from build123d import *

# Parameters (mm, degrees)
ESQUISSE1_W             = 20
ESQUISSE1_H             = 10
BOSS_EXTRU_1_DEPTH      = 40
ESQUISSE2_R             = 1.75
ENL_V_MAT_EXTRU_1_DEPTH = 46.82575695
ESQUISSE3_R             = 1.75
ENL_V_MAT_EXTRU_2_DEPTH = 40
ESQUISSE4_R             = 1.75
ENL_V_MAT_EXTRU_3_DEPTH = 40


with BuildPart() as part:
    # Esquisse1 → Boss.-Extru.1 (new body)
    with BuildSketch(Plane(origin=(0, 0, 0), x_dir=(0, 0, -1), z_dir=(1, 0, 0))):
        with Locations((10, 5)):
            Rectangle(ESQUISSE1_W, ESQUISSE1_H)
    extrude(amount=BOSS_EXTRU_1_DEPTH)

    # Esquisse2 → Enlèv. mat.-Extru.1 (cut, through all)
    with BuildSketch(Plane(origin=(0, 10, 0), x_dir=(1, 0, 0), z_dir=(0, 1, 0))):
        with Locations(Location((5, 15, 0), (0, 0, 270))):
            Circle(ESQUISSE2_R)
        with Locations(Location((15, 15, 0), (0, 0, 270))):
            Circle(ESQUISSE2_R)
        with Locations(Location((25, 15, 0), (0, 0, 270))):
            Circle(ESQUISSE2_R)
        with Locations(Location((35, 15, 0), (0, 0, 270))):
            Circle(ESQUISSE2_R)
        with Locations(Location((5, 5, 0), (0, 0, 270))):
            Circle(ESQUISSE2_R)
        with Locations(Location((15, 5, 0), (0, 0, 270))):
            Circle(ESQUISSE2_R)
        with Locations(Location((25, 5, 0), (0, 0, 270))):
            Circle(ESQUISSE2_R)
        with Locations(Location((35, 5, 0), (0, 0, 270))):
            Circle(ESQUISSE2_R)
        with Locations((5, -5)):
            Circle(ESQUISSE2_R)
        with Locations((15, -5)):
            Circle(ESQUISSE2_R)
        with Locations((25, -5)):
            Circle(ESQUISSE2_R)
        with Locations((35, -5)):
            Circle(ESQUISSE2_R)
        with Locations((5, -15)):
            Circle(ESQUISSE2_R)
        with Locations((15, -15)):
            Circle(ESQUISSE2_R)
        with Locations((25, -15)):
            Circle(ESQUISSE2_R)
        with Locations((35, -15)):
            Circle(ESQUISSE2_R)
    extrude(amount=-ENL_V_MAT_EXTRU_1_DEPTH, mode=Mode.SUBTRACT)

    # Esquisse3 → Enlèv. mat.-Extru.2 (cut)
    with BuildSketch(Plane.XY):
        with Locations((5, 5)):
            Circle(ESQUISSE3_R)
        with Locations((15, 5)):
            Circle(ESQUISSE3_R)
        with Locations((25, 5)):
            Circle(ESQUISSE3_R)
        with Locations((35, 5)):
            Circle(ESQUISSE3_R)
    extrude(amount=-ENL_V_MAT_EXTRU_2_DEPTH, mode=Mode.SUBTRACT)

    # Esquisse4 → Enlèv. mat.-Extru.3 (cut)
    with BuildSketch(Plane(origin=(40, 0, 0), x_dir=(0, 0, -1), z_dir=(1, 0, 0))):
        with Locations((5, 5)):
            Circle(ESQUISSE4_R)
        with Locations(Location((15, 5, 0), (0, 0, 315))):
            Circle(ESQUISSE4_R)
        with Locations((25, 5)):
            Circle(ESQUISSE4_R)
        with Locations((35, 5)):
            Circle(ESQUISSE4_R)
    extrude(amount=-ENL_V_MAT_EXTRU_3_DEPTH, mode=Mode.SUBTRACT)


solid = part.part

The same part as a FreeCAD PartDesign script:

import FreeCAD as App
import Part
import Sketcher
from FreeCAD import Vector
Q = App.Units.Quantity

doc = App.newDocument("Part")
params = doc.addObject("Spreadsheet::Sheet", "Params")
for row, (alias, value) in enumerate([
    ("sketch1_width", "10 mm"),
    ("sketch1_height", "20 mm"),
    ("pad1_length", "40 mm"),
    ("sketch2_diameter", "3.5 mm"),
    ("sketch3_diameter", "3.5 mm"),
    ("pocket2_length", "40 mm"),
    ("sketch4_diameter", "3.5 mm"),
    ("pocket3_length", "40 mm"),
], start=1):
    params.set(f"A{row}", alias)
    params.set(f"B{row}", "=" + value)
    params.setAlias(f"B{row}", alias)

body = doc.addObject("PartDesign::Body", "Body")

sketch1 = body.newObject("Sketcher::SketchObject", "Sketch")
sketch1.AttachmentSupport = (doc.getObject("YZ_Plane"), [""])
sketch1.MapMode = "FlatFace"
sketch1.addGeometry([
    Part.LineSegment(Vector(10, 0, 0), Vector(0, 0, 0)),
    Part.LineSegment(Vector(0, 0, 0), Vector(0, -20, 0)),
    Part.LineSegment(Vector(0, -20, 0), Vector(10, -20, 0)),
    Part.LineSegment(Vector(10, -20, 0), Vector(10, 0, 0)),
], False)
sketch1.addConstraint([
    Sketcher.Constraint("Coincident", 0, 2, 1, 1),
    Sketcher.Constraint("Coincident", 1, 2, 2, 1),
    Sketcher.Constraint("Coincident", 2, 2, 3, 1),
    Sketcher.Constraint("Coincident", 3, 2, 0, 1),
    Sketcher.Constraint("Horizontal", 0),
    Sketcher.Constraint("Vertical", 1),
    Sketcher.Constraint("Horizontal", 2),
    Sketcher.Constraint("Vertical", 3),
    Sketcher.Constraint("Coincident", 0, 2, -1, 1),
    Sketcher.Constraint("DistanceX", 0, 2, 0, 1, Q("10 mm")),
    Sketcher.Constraint("DistanceY", 1, 2, 1, 1, Q("20 mm")),
])
sketch1.setExpression("Constraints[9]", "Params.sketch1_width")
sketch1.setExpression("Constraints[10]", "Params.sketch1_height")
pad1 = body.newObject("PartDesign::Pad", "Pad")
pad1.Profile = sketch1
pad1.setExpression("Length", "Params.pad1_length")

sketch2 = body.newObject("Sketcher::SketchObject", "Sketch001")
sketch2.AttachmentSupport = (doc.getObject("XZ_Plane"), [""])
sketch2.MapMode = "FlatFace"
sketch2.AttachmentOffset = App.Placement(Vector(0, 0, -10), App.Rotation())
sketch2.addGeometry([
    Part.Circle(Vector(5, -15, 0), Vector(0, 0, 1), 1.8),
    Part.Circle(Vector(15, -15, 0), Vector(0, 0, 1), 1.8),
    Part.Circle(Vector(25, -15, 0), Vector(0, 0, 1), 1.8),
    Part.Circle(Vector(35, -15, 0), Vector(0, 0, 1), 1.8),
    Part.Circle(Vector(5, -5, 0), Vector(0, 0, 1), 1.8),
    Part.Circle(Vector(15, -5, 0), Vector(0, 0, 1), 1.8),
    Part.Circle(Vector(25, -5, 0), Vector(0, 0, 1), 1.8),
    Part.Circle(Vector(35, -5, 0), Vector(0, 0, 1), 1.8),
    Part.Circle(Vector(5, 5, 0), Vector(0, 0, 1), 1.8),
    Part.Circle(Vector(15, 5, 0), Vector(0, 0, 1), 1.8),
    Part.Circle(Vector(25, 5, 0), Vector(0, 0, 1), 1.8),
    Part.Circle(Vector(35, 5, 0), Vector(0, 0, 1), 1.8),
    Part.Circle(Vector(5, 15, 0), Vector(0, 0, 1), 1.8),
    Part.Circle(Vector(15, 15, 0), Vector(0, 0, 1), 1.8),
    Part.Circle(Vector(25, 15, 0), Vector(0, 0, 1), 1.8),
    Part.Circle(Vector(35, 15, 0), Vector(0, 0, 1), 1.8),
], False)
sketch2.addConstraint([
    Sketcher.Constraint("Equal", 0, 1),
    Sketcher.Constraint("Equal", 1, 2),
    Sketcher.Constraint("Equal", 2, 3),
    Sketcher.Constraint("Equal", 3, 4),
    Sketcher.Constraint("Equal", 4, 5),
    Sketcher.Constraint("Equal", 5, 6),
    Sketcher.Constraint("Equal", 6, 7),
    Sketcher.Constraint("Equal", 7, 8),
    Sketcher.Constraint("Equal", 8, 9),
    Sketcher.Constraint("Equal", 9, 10),
    Sketcher.Constraint("Equal", 10, 11),
    Sketcher.Constraint("Equal", 11, 12),
    Sketcher.Constraint("Equal", 12, 13),
    Sketcher.Constraint("Equal", 13, 14),
    Sketcher.Constraint("Equal", 14, 15),
    Sketcher.Constraint("Symmetric", 4, 3, 8, 3, -1),
    Sketcher.Constraint("Symmetric", 5, 3, 9, 3, -1),
    Sketcher.Constraint("Symmetric", 6, 3, 10, 3, -1),
    Sketcher.Constraint("Symmetric", 7, 3, 11, 3, -1),
    Sketcher.Constraint("Symmetric", 0, 3, 12, 3, -1),
    Sketcher.Constraint("Symmetric", 1, 3, 13, 3, -1),
    Sketcher.Constraint("Symmetric", 2, 3, 14, 3, -1),
    Sketcher.Constraint("Symmetric", 3, 3, 15, 3, -1),
    Sketcher.Constraint("Horizontal", 0, 3, 1, 3),
    Sketcher.Constraint("Horizontal", 1, 3, 2, 3),
    Sketcher.Constraint("Horizontal", 2, 3, 3, 3),
    Sketcher.Constraint("Horizontal", 4, 3, 5, 3),
    Sketcher.Constraint("Horizontal", 5, 3, 6, 3),
    Sketcher.Constraint("Horizontal", 6, 3, 7, 3),
    Sketcher.Constraint("Vertical", 0, 3, 4, 3),
    Sketcher.Constraint("Vertical", 1, 3, 5, 3),
    Sketcher.Constraint("Vertical", 2, 3, 6, 3),
    Sketcher.Constraint("Vertical", 3, 3, 7, 3),
    Sketcher.Constraint("Diameter", 0, Q("3.5 mm")),
    Sketcher.Constraint("DistanceX", -1, 1, 0, 3, Q("5 mm")),
    Sketcher.Constraint("DistanceY", 0, 3, -1, 1, Q("15 mm")),
    Sketcher.Constraint("DistanceX", -1, 1, 1, 3, Q("15 mm")),
    Sketcher.Constraint("DistanceX", -1, 1, 2, 3, Q("25 mm")),
    Sketcher.Constraint("DistanceX", -1, 1, 3, 3, Q("35 mm")),
    Sketcher.Constraint("DistanceY", 4, 3, -1, 1, Q("5 mm")),
])
sketch2.setExpression("Constraints[33]", "Params.sketch2_diameter")
pocket1 = body.newObject("PartDesign::Pocket", "Pocket")
pocket1.Profile = sketch2
pocket1.Type = "ThroughAll"
pocket1.Reversed = True

sketch3 = body.newObject("Sketcher::SketchObject", "Sketch002")
sketch3.AttachmentSupport = (doc.getObject("XY_Plane"), [""])
sketch3.MapMode = "FlatFace"
sketch3.addGeometry([
    Part.Circle(Vector(5, 5, 0), Vector(0, 0, 1), 1.8),
    Part.Circle(Vector(15, 5, 0), Vector(0, 0, 1), 1.8),
    Part.Circle(Vector(25, 5, 0), Vector(0, 0, 1), 1.8),
    Part.Circle(Vector(35, 5, 0), Vector(0, 0, 1), 1.8),
], False)
sketch3.addConstraint([
    Sketcher.Constraint("Equal", 0, 1),
    Sketcher.Constraint("Equal", 1, 2),
    Sketcher.Constraint("Equal", 2, 3),
    Sketcher.Constraint("Horizontal", 0, 3, 1, 3),
    Sketcher.Constraint("Horizontal", 1, 3, 2, 3),
    Sketcher.Constraint("Horizontal", 2, 3, 3, 3),
    Sketcher.Constraint("Diameter", 0, Q("3.5 mm")),
    Sketcher.Constraint("DistanceX", -1, 1, 0, 3, Q("5 mm")),
    Sketcher.Constraint("DistanceY", -1, 1, 0, 3, Q("5 mm")),
    Sketcher.Constraint("DistanceX", -1, 1, 1, 3, Q("15 mm")),
    Sketcher.Constraint("DistanceX", -1, 1, 2, 3, Q("25 mm")),
    Sketcher.Constraint("DistanceX", -1, 1, 3, 3, Q("35 mm")),
])
sketch3.setExpression("Constraints[6]", "Params.sketch3_diameter")
pocket2 = body.newObject("PartDesign::Pocket", "Pocket001")
pocket2.Profile = sketch3
pocket2.setExpression("Length", "Params.pocket2_length")

sketch4 = body.newObject("Sketcher::SketchObject", "Sketch003")
sketch4.AttachmentSupport = (doc.getObject("YZ_Plane"), [""])
sketch4.MapMode = "FlatFace"
sketch4.AttachmentOffset = App.Placement(Vector(0, 0, 40), App.Rotation())
sketch4.addGeometry([
    Part.Circle(Vector(5, -5, 0), Vector(0, 0, 1), 1.8),
    Part.Circle(Vector(5, -15, 0), Vector(0, 0, 1), 1.8),
    Part.Circle(Vector(5, -25, 0), Vector(0, 0, 1), 1.8),
    Part.Circle(Vector(5, -35, 0), Vector(0, 0, 1), 1.8),
], False)
sketch4.addConstraint([
    Sketcher.Constraint("Equal", 0, 1),
    Sketcher.Constraint("Equal", 1, 2),
    Sketcher.Constraint("Equal", 2, 3),
    Sketcher.Constraint("Vertical", 0, 3, 1, 3),
    Sketcher.Constraint("Vertical", 1, 3, 2, 3),
    Sketcher.Constraint("Vertical", 2, 3, 3, 3),
    Sketcher.Constraint("Diameter", 0, Q("3.5 mm")),
    Sketcher.Constraint("DistanceX", -1, 1, 0, 3, Q("5 mm")),
    Sketcher.Constraint("DistanceY", 0, 3, -1, 1, Q("5 mm")),
    Sketcher.Constraint("DistanceY", 1, 3, -1, 1, Q("15 mm")),
    Sketcher.Constraint("DistanceY", 2, 3, -1, 1, Q("25 mm")),
    Sketcher.Constraint("DistanceY", 3, 3, -1, 1, Q("35 mm")),
])
sketch4.setExpression("Constraints[6]", "Params.sketch4_diameter")
pocket3 = body.newObject("PartDesign::Pocket", "Pocket002")
pocket3.Profile = sketch4
pocket3.setExpression("Length", "Params.pocket3_length")

doc.recompute()
